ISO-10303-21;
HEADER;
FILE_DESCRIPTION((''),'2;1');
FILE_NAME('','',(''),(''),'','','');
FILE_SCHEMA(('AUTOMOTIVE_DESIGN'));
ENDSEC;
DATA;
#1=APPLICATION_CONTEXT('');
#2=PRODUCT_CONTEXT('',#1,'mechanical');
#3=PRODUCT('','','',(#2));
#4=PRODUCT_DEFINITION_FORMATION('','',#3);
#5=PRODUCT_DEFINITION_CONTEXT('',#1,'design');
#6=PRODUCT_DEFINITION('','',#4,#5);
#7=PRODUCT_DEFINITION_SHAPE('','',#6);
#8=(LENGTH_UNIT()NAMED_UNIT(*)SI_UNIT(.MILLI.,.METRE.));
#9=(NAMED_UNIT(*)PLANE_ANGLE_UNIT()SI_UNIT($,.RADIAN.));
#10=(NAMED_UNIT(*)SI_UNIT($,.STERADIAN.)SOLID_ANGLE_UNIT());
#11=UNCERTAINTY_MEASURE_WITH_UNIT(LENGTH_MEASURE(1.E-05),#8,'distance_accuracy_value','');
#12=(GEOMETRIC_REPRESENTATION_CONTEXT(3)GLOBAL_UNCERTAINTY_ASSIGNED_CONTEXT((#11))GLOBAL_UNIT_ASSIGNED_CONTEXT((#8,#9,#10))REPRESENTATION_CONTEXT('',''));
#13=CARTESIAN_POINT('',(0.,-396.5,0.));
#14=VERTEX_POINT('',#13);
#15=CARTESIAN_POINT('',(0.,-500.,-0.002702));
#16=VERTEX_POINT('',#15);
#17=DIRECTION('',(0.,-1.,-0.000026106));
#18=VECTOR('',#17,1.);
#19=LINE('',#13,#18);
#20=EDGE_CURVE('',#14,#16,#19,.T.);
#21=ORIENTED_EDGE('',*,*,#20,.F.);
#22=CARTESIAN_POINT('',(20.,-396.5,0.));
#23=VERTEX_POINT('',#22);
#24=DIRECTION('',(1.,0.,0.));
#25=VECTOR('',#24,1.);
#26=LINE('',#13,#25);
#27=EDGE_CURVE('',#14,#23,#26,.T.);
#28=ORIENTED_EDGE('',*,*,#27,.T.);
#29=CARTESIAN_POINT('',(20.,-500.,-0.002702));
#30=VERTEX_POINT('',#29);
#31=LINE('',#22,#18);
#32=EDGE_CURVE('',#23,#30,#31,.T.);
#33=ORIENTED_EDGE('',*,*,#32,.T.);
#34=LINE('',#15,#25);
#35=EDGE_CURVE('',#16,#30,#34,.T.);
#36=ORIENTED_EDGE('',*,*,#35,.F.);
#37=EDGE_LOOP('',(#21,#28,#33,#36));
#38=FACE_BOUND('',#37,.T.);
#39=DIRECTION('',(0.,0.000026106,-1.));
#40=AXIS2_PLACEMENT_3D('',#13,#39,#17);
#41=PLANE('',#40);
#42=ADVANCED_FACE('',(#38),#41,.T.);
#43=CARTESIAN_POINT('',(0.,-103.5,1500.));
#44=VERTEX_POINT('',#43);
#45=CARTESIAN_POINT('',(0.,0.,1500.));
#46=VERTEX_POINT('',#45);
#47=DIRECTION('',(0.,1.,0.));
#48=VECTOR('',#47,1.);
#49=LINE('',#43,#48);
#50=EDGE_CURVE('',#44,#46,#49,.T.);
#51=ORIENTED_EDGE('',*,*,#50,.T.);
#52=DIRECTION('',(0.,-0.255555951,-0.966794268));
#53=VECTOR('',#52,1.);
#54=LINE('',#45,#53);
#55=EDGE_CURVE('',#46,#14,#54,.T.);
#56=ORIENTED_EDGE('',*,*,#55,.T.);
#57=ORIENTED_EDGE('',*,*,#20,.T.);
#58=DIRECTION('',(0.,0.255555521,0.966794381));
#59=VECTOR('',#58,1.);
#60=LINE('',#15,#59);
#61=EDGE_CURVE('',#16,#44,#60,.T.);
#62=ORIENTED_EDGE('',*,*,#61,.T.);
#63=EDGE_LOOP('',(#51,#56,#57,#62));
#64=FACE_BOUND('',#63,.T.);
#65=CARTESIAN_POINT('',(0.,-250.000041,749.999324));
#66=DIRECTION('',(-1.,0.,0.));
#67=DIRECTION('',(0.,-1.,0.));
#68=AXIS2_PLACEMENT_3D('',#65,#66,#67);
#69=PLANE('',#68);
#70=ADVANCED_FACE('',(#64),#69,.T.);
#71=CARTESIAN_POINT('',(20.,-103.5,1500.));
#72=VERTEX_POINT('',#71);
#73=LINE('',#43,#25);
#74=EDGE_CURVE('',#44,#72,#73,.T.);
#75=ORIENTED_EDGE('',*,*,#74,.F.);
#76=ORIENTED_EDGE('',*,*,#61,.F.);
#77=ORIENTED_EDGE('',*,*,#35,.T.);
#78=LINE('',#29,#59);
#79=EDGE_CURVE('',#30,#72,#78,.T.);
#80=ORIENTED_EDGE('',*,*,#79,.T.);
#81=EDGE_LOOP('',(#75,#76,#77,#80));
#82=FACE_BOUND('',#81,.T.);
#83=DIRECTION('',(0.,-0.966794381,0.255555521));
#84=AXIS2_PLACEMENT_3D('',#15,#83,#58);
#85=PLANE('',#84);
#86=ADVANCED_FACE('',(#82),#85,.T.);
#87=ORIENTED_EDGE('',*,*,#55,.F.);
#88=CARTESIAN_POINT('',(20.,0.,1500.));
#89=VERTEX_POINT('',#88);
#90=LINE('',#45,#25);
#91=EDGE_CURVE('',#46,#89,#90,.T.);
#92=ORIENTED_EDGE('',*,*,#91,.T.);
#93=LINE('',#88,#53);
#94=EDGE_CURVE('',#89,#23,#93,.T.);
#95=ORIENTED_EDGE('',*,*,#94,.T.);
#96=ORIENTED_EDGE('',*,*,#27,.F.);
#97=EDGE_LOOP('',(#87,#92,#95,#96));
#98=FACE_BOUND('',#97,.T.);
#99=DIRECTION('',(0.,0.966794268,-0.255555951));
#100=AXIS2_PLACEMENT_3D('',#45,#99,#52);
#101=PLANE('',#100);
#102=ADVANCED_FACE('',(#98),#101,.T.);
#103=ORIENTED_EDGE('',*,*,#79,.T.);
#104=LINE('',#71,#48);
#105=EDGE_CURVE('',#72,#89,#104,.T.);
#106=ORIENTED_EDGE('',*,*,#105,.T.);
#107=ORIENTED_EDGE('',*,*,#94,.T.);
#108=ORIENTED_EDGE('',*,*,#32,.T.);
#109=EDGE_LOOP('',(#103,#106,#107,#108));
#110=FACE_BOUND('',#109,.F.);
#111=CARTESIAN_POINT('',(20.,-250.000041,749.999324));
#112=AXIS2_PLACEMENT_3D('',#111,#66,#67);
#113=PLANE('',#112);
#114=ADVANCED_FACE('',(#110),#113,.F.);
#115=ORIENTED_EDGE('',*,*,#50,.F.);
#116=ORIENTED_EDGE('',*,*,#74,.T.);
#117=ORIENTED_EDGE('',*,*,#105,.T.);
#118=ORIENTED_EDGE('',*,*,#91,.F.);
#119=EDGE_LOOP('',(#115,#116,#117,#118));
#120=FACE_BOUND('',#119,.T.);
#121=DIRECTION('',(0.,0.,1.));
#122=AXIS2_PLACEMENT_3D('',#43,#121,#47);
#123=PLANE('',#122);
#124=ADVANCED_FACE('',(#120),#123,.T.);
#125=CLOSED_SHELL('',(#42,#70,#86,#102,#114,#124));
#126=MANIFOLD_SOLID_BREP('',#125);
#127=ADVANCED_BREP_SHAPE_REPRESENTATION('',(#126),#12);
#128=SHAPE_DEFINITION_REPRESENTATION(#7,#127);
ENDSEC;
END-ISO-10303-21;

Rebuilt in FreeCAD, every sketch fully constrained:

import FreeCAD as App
import Part
import Sketcher

V = App.Vector
Q = App.Units.Quantity

doc = App.newDocument("Part")
params = doc.addObject("Spreadsheet::Sheet", "Params")
for row, (alias, value) in enumerate([
    ("sketch1_width", "103.5 mm"),
    ("pad1_length", "20 mm"),
], start=1):
    params.set(f"A{row}", alias)
    params.set(f"B{row}", "=" + value)
    params.setAlias(f"B{row}", alias)

body = doc.addObject("PartDesign::Body", "Body")

# Sketch on YZ plane
sketch1 = body.newObject("Sketcher::SketchObject", "Sketch")
sketch1.AttachmentSupport = (doc.getObject("YZ_Plane"), [""])
sketch1.MapMode = "FlatFace"
sketch1.addGeometry([
    Part.LineSegment(V(0, 1500, 0), V(-103.5, 1500, 0)),
    Part.LineSegment(V(-103.5, 1500, 0), V(-500, -0.002702, 0)),
    Part.LineSegment(V(-500, -0.002702, 0), V(-396.5, 0, 0)),
    Part.LineSegment(V(-396.5, 0, 0), V(0, 1500, 0)),
], False)
sketch1.addConstraint([
    Sketcher.Constraint("Coincident", 0, 2, 1, 1),
    Sketcher.Constraint("Coincident", 1, 2, 2, 1),
    Sketcher.Constraint("Coincident", 2, 2, 3, 1),
    Sketcher.Constraint("Coincident", 3, 2, 0, 1),
    Sketcher.Constraint("Horizontal", 0),
    Sketcher.Constraint("PointOnObject", 2, 2, -1),
    Sketcher.Constraint("PointOnObject", 3, 2, -2),
    Sketcher.Constraint("DistanceX", 0, 2, 0, 1, Q("103.5 mm")),
    Sketcher.Constraint("DistanceY", -1, 1, 0, 2, Q("1500 mm")),
    Sketcher.Constraint("DistanceX", 1, 2, -1, 1, Q("500 mm")),
    Sketcher.Constraint("DistanceX", 2, 2, 0, 2, Q("293 mm")),
    Sketcher.Constraint("DistanceY", 1, 2, -1, 1, Q("0.002702 mm")),
])
sketch1.setExpression("Constraints[7]", "Params.sketch1_width")
pad1 = body.newObject("PartDesign::Pad", "Pad")
pad1.Profile = sketch1
pad1.setExpression("Length", "Params.pad1_length")

doc.recompute()
